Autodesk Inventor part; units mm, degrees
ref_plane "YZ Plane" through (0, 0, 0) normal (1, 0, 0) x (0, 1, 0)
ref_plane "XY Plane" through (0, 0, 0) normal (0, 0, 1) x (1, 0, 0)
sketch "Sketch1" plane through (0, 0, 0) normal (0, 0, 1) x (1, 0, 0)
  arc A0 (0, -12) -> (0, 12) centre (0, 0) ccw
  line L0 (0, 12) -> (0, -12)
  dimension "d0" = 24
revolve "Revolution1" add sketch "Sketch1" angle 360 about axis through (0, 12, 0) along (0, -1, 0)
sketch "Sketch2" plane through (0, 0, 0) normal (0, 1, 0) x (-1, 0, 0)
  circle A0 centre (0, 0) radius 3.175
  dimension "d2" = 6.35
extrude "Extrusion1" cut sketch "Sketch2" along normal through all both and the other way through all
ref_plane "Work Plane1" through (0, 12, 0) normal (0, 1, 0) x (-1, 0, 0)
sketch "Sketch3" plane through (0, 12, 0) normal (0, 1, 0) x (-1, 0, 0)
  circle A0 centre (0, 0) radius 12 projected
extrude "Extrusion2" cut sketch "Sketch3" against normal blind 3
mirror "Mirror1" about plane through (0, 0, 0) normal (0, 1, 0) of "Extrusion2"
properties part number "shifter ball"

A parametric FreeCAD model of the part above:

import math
import FreeCAD as App
import Part
import Sketcher

V = App.Vector
Q = App.Units.Quantity

doc = App.newDocument("Part")
body = doc.addObject("PartDesign::Body", "Body")

# Sketch on XY plane
sketch1 = body.newObject("Sketcher::SketchObject", "Sketch")
sketch1.AttachmentSupport = (doc.getObject("XY_Plane"), [""])
sketch1.MapMode = "FlatFace"
sketch1.addGeometry(Part.LineSegment(V(0, 12, 0), V(0, -12, 0)), False)
sketch1.addGeometry(Part.ArcOfCircle(Part.Circle(V(0, 0, 0), V(0, 0, 1), 12), math.radians(-90), math.radians(90)), False)
sketch1.addConstraint(Sketcher.Constraint("Coincident", 0, 1, 1, 2))
sketch1.addConstraint(Sketcher.Constraint("Coincident", 1, 1, 0, 2))
sketch1.addConstraint(Sketcher.Constraint("Vertical", 0))
sketch1.addConstraint(Sketcher.Constraint("Coincident", 1, 3, -1, 1))
sketch1.addConstraint(Sketcher.Constraint("PointOnObject", 0, 1, -2))
sketch1.addConstraint(Sketcher.Constraint("Radius", 1, Q("12 mm")))
revolution = body.newObject("PartDesign::Revolution", "Revolution")
revolution.Profile = sketch1
revolution.ReferenceAxis = (sketch1, ["V_Axis"])
revolution.Angle = 360

# Sketch on XZ plane
sketch2 = body.newObject("Sketcher::SketchObject", "Sketch001")
sketch2.AttachmentSupport = (doc.getObject("XZ_Plane"), [""])
sketch2.MapMode = "FlatFace"
sketch2.addGeometry(Part.Circle(V(0, 0, 0), V(0, 0, 1), 3.2), False)
sketch2.addConstraint(Sketcher.Constraint("Coincident", 0, 3, -1, 1))
sketch2.addConstraint(Sketcher.Constraint("Diameter", 0, Q("6.35 mm")))
pocket1 = body.newObject("PartDesign::Pocket", "Pocket")
pocket1.Profile = sketch2
pocket1.Type = "ThroughAll"
pocket1.Midplane = True

# Sketch on XZ plane
sketch3 = body.newObject("Sketcher::SketchObject", "Sketch002")
sketch3.AttachmentSupport = (doc.getObject("XZ_Plane"), [""])
sketch3.MapMode = "FlatFace"
sketch3.AttachmentOffset = App.Placement(V(0, 0, -12), App.Rotation())
sketch3.addGeometry(Part.Circle(V(0, 0, 0), V(0, 0, 1), 12), False)
sketch3.addConstraint(Sketcher.Constraint("Coincident", 0, 3, -1, 1))
sketch3.addConstraint(Sketcher.Constraint("Diameter", 0, Q("24 mm")))
pocket2 = body.newObject("PartDesign::Pocket", "Pocket001")
pocket2.Profile = sketch3
pocket2.Length = 3
pocket2.Reversed = True
doc.recompute()

mirrored = body.newObject("PartDesign::Mirrored", "Mirrored")
mirrored.Originals = [pocket2]
mirrored.MirrorPlane = (doc.getObject("XZ_Plane"), [""])
body.Tip = mirrored

doc.recompute()
